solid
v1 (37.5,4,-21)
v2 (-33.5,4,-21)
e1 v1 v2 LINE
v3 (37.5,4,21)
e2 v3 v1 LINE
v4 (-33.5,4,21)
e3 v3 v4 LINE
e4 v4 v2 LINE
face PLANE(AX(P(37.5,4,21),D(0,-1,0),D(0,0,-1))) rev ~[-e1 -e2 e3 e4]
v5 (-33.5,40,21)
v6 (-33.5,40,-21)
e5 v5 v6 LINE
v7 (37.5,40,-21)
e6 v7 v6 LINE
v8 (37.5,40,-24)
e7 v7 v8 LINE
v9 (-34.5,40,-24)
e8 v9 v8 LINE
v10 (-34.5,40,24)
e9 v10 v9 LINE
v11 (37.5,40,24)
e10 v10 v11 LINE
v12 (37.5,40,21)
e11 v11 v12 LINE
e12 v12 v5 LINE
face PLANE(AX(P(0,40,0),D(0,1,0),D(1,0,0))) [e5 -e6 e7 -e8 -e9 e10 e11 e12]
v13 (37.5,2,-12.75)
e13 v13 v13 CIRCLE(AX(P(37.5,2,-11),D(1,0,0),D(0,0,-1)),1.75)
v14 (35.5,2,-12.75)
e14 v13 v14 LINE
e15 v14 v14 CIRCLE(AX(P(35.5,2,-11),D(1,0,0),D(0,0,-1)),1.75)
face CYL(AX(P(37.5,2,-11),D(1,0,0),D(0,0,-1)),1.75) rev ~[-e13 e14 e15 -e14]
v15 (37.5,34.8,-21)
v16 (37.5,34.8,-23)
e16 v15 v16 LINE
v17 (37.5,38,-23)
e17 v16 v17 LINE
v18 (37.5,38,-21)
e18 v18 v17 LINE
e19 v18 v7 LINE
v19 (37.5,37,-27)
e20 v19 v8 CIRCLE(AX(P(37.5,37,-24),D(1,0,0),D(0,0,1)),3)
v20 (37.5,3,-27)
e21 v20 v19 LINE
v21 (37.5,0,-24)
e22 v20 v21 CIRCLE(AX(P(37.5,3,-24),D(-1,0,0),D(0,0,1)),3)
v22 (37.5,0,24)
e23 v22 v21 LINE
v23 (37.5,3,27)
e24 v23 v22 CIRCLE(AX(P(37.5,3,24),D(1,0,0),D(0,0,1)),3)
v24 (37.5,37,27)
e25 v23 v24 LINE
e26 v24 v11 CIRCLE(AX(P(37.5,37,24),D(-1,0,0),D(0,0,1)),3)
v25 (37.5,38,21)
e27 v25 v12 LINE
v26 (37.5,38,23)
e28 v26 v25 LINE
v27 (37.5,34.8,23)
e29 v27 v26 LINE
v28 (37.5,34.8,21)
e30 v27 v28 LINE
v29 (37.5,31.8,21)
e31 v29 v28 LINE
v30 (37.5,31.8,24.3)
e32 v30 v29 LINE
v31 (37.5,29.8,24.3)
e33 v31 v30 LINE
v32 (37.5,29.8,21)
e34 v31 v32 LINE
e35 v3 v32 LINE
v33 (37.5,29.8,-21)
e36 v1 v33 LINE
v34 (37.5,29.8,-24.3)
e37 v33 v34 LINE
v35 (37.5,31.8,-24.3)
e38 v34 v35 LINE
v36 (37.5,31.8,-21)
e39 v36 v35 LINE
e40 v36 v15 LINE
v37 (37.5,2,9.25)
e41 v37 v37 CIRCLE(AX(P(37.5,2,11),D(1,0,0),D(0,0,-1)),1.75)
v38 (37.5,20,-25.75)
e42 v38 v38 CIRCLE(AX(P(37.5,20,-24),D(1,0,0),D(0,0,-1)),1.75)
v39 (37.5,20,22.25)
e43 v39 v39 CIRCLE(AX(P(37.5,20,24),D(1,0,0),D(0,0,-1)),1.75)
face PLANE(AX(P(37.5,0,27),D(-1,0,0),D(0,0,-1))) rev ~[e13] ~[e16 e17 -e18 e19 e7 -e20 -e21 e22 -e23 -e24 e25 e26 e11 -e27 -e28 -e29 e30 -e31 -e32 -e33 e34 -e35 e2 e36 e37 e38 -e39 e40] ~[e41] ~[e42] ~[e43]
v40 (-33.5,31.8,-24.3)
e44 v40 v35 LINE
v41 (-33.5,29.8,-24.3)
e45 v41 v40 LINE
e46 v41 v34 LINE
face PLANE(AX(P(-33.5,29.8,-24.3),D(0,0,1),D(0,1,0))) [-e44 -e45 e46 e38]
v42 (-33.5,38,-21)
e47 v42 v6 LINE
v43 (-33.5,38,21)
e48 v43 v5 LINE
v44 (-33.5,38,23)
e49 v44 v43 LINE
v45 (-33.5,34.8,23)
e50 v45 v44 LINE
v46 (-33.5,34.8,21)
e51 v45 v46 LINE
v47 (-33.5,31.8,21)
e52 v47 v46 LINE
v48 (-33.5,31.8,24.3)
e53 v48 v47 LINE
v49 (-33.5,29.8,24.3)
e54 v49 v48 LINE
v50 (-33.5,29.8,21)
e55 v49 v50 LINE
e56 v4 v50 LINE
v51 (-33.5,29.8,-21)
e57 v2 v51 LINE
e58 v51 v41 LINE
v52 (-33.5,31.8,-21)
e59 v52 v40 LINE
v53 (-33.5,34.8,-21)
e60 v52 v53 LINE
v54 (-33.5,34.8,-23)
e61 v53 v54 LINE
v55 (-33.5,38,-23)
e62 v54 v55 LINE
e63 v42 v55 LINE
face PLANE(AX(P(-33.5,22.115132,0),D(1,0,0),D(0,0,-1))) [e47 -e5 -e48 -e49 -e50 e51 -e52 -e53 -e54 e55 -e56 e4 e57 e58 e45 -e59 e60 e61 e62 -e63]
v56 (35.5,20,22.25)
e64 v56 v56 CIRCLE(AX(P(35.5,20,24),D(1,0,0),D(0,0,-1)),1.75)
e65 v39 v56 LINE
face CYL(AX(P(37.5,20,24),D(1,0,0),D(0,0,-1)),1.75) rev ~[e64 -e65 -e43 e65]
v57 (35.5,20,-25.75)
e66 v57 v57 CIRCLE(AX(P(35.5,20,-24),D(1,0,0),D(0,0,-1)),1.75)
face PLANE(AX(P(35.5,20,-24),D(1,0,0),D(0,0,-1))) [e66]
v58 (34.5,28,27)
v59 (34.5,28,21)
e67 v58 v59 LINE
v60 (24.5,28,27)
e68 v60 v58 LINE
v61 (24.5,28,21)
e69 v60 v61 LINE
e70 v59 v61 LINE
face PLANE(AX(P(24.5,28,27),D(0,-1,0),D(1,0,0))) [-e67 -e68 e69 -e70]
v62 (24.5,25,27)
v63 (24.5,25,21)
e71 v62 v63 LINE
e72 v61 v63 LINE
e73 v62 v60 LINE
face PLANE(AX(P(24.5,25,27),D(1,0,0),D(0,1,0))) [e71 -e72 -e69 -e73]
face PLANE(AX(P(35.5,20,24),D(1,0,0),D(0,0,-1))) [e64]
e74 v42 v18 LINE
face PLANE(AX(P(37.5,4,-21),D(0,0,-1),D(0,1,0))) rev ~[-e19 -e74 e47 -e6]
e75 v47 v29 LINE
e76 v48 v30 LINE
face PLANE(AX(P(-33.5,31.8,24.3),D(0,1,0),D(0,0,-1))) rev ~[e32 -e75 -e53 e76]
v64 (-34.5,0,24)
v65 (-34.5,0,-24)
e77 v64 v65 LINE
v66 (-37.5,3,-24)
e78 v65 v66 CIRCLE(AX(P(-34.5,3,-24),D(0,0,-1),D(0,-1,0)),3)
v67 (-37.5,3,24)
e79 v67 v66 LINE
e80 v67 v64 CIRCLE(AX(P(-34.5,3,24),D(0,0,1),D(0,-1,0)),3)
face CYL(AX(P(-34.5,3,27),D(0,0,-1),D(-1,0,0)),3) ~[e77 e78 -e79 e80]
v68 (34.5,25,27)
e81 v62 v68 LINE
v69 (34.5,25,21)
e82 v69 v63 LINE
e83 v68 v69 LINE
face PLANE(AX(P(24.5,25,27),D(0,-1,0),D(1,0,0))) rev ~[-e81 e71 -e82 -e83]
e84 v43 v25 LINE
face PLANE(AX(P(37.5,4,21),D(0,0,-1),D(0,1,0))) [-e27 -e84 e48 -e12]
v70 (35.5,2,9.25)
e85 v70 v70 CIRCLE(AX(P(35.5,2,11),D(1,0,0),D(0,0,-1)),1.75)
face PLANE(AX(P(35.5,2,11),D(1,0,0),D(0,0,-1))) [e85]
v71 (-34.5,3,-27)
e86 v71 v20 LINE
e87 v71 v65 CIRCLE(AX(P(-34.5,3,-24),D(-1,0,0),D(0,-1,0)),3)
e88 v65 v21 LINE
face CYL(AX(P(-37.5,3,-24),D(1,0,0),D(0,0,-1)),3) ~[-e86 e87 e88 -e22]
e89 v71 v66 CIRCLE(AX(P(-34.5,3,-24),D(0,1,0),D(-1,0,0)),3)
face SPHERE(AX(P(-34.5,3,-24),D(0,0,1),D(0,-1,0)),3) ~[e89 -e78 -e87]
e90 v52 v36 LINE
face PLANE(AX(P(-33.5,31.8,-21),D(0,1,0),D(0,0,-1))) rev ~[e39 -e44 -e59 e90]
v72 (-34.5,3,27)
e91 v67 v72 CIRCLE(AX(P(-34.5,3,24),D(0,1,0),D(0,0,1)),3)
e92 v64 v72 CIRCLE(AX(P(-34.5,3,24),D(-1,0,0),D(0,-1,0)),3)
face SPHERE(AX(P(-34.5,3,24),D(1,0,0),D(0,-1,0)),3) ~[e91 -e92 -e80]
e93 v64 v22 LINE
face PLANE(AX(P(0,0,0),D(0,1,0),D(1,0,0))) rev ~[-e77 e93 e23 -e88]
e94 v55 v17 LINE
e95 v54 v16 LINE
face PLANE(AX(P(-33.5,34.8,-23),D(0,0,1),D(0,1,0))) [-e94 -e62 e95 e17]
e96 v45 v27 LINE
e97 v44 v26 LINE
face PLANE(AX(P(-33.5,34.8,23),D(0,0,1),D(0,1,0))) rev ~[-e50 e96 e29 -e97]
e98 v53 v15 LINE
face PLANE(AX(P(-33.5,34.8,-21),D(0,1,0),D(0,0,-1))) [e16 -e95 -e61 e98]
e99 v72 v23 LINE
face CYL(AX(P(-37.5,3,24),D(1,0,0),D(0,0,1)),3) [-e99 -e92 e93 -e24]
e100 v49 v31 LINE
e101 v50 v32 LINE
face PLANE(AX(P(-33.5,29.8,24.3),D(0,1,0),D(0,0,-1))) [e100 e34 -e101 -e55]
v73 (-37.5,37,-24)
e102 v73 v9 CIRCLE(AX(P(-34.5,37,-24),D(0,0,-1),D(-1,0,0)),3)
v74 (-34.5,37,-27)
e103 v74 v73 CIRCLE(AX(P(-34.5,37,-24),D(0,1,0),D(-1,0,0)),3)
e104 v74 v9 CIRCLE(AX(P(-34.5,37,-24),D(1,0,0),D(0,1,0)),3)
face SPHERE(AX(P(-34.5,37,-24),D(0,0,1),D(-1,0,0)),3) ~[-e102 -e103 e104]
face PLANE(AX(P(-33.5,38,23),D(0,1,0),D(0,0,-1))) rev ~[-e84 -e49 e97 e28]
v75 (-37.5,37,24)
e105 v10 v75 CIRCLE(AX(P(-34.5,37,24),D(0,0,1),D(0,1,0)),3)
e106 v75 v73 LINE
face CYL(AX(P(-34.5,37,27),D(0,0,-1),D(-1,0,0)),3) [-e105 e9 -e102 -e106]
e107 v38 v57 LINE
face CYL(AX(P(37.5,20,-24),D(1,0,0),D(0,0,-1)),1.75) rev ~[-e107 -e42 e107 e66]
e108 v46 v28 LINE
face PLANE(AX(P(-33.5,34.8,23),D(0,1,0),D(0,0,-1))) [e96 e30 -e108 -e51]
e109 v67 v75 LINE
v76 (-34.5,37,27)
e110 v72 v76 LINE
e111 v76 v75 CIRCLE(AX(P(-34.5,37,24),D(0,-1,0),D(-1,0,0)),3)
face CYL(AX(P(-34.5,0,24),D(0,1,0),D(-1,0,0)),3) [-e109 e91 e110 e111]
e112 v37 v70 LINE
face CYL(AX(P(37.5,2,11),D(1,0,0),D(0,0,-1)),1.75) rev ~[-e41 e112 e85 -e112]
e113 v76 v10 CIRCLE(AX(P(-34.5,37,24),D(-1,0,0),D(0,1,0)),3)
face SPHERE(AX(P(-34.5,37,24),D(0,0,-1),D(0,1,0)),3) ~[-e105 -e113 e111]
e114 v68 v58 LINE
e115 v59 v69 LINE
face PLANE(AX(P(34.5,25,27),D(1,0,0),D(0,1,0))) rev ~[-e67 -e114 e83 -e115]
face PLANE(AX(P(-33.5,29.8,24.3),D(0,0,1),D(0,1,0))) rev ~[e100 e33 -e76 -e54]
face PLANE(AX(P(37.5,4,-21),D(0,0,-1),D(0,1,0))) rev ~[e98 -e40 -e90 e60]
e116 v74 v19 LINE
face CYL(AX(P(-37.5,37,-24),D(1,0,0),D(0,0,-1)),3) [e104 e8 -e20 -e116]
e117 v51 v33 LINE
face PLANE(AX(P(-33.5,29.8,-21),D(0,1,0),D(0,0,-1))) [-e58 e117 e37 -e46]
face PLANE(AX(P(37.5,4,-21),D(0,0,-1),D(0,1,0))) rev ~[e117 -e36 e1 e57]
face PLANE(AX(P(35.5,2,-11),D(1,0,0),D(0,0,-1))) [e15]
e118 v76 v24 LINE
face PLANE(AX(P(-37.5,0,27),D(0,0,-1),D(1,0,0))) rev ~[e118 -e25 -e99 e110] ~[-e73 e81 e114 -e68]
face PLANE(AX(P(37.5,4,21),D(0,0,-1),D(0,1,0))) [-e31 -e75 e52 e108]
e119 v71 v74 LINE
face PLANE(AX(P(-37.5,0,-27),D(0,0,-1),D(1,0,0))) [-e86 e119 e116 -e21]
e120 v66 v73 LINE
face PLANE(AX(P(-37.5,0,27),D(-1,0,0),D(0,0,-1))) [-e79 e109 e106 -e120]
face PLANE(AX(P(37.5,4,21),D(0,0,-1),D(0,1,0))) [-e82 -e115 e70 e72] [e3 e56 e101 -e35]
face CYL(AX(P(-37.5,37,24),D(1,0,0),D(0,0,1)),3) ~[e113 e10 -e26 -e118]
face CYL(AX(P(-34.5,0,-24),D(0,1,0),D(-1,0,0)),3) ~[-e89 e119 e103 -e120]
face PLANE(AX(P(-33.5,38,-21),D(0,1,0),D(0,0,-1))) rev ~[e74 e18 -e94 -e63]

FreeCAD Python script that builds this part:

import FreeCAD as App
import Part
import Sketcher
from FreeCAD import Vector


def edges_at(feature, points):
    """Names of the edges that pass closest to the given points."""
    edges = feature.Shape.Edges
    near = lambda p: min(range(len(edges)), key=lambda i: edges[i].distToShape(Part.Vertex(*p))[0])
    return sorted({f"Edge{near(p) + 1}" for p in points})

doc = App.newDocument("Part")
body = doc.addObject("PartDesign::Body", "Body")

# Sketch on XZ plane
sketch1 = doc.addObject("Sketcher::SketchObject", "Sketch")
body.addObject(sketch1)
sketch1.AttachmentSupport = (doc.XZ_Plane, [""])
sketch1.MapMode = "FlatFace"
sketch1.addGeometry([
    Part.LineSegment(Vector(-37.5, -27, 0), Vector(-37.5, 27, 0)),
    Part.LineSegment(Vector(-37.5, 27, 0), Vector(37.5, 27, 0)),
    Part.LineSegment(Vector(37.5, 27, 0), Vector(37.5, -27, 0)),
    Part.LineSegment(Vector(37.5, -27, 0), Vector(-37.5, -27, 0)),
], False)
sketch1.addConstraint([
    Sketcher.Constraint("Coincident", 0, 2, 1, 1),
    Sketcher.Constraint("Coincident", 1, 2, 2, 1),
    Sketcher.Constraint("Coincident", 2, 2, 3, 1),
    Sketcher.Constraint("Coincident", 3, 2, 0, 1),
    Sketcher.Constraint("Vertical", 0),
    Sketcher.Constraint("Horizontal", 1),
    Sketcher.Constraint("Vertical", 2),
    Sketcher.Constraint("Horizontal", 3),
    Sketcher.Constraint("Symmetric", 0, 2, 2, 2, -1, 1),
    Sketcher.Constraint("DistanceX", 1, 1, 1, 2, 75.0),
    Sketcher.Constraint("DistanceY", 0, 1, 0, 2, 54.0),
])
pad1 = doc.addObject("PartDesign::Pad", "Pad")
body.addObject(pad1)
pad1.Profile = sketch1
pad1.Length = 40
pad1.Reversed = True

# Sketch on YZ plane
sketch2 = doc.addObject("Sketcher::SketchObject", "Sketch001")
body.addObject(sketch2)
sketch2.AttachmentSupport = (doc.YZ_Plane, [""])
sketch2.MapMode = "FlatFace"
sketch2.AttachmentOffset = App.Placement(Vector(0, 0, 37.5), App.Rotation())
sketch2.addGeometry([
    Part.LineSegment(Vector(40.230265, 21, 0), Vector(4, 21, 0)),
    Part.LineSegment(Vector(4, 21, 0), Vector(4, -21, 0)),
    Part.LineSegment(Vector(4, -21, 0), Vector(40.230265, -21, 0)),
    Part.LineSegment(Vector(40.230265, -21, 0), Vector(40.230265, 21, 0)),
], False)
sketch2.addConstraint([
    Sketcher.Constraint("Coincident", 0, 2, 1, 1),
    Sketcher.Constraint("Coincident", 1, 2, 2, 1),
    Sketcher.Constraint("Coincident", 2, 2, 3, 1),
    Sketcher.Constraint("Coincident", 3, 2, 0, 1),
    Sketcher.Constraint("Horizontal", 0),
    Sketcher.Constraint("Vertical", 1),
    Sketcher.Constraint("Horizontal", 2),
    Sketcher.Constraint("Vertical", 3),
    Sketcher.Constraint("DistanceY", 1, 2, 1, 1, 42.0),
    Sketcher.Constraint("DistanceX", -1, 1, 0, 2, 4.0),
    Sketcher.Constraint("DistanceY", -1, 1, 0, 2, 21.0),
    Sketcher.Constraint("DistanceX", 0, 2, 0, 1, 36.230265),
])
pocket1 = doc.addObject("PartDesign::Pocket", "Pocket")
body.addObject(pocket1)
pocket1.Profile = sketch2
pocket1.Length = 71

# Sketch on YZ plane
sketch3 = doc.addObject("Sketcher::SketchObject", "Sketch002")
body.addObject(sketch3)
sketch3.AttachmentSupport = (doc.YZ_Plane, [""])
sketch3.MapMode = "FlatFace"
sketch3.AttachmentOffset = App.Placement(Vector(0, 0, -33.5), App.Rotation())
sketch3.addGeometry([
    Part.LineSegment(Vector(38, 23, 0), Vector(34.8, 23, 0)),  # 0
    Part.LineSegment(Vector(34.8, 23, 0), Vector(34.8, 21, 0)),  # 1
    Part.LineSegment(Vector(34.8, 21, 0), Vector(38, 21, 0)),  # 2
    Part.LineSegment(Vector(38, 21, 0), Vector(38, 23, 0)),  # 3
    Part.LineSegment(Vector(31.8, 24.3, 0), Vector(29.8, 24.3, 0)),  # 4
    Part.LineSegment(Vector(29.8, 24.3, 0), Vector(29.8, 21, 0)),  # 5
    Part.LineSegment(Vector(29.8, 21, 0), Vector(31.8, 21, 0)),  # 6
    Part.LineSegment(Vector(31.8, 21, 0), Vector(31.8, 24.3, 0)),  # 7
    Part.LineSegment(Vector(38, -21, 0), Vector(34.8, -21, 0)),  # 8
    Part.LineSegment(Vector(34.8, -21, 0), Vector(34.8, -23, 0)),  # 9
    Part.LineSegment(Vector(34.8, -23, 0), Vector(38, -23, 0)),  # 10
    Part.LineSegment(Vector(38, -23, 0), Vector(38, -21, 0)),  # 11
    Part.LineSegment(Vector(31.8, -21, 0), Vector(29.8, -21, 0)),  # 12
    Part.LineSegment(Vector(29.8, -21, 0), Vector(29.8, -24.3, 0)),  # 13
    Part.LineSegment(Vector(29.8, -24.3, 0), Vector(31.8, -24.3, 0)),  # 14
    Part.LineSegment(Vector(31.8, -24.3, 0), Vector(31.8, -21, 0)),  # 15
], False)
sketch3.addConstraint([
    Sketcher.Constraint("Coincident", 0, 2, 1, 1),
    Sketcher.Constraint("Coincident", 1, 2, 2, 1),
    Sketcher.Constraint("Coincident", 2, 2, 3, 1),
    Sketcher.Constraint("Coincident", 3, 2, 0, 1),
    Sketcher.Constraint("Coincident", 4, 2, 5, 1),
    Sketcher.Constraint("Coincident", 5, 2, 6, 1),
    Sketcher.Constraint("Coincident", 6, 2, 7, 1),
    Sketcher.Constraint("Coincident", 7, 2, 4, 1),
    Sketcher.Constraint("Coincident", 8, 2, 9, 1),
    Sketcher.Constraint("Coincident", 9, 2, 10, 1),
    Sketcher.Constraint("Coincident", 10, 2, 11, 1),
    Sketcher.Constraint("Coincident", 11, 2, 8, 1),
    Sketcher.Constraint("Coincident", 12, 2, 13, 1),
    Sketcher.Constraint("Coincident", 13, 2, 14, 1),
    Sketcher.Constraint("Coincident", 14, 2, 15, 1),
    Sketcher.Constraint("Coincident", 15, 2, 12, 1),
    Sketcher.Constraint("Horizontal", 0),
    Sketcher.Constraint("Vertical", 1),
    Sketcher.Constraint("Horizontal", 2),
    Sketcher.Constraint("Vertical", 3),
    Sketcher.Constraint("Horizontal", 4),
    Sketcher.Constraint("Vertical", 5),
    Sketcher.Constraint("Horizontal", 6),
    Sketcher.Constraint("Vertical", 7),
    Sketcher.Constraint("Horizontal", 8),
    Sketcher.Constraint("Vertical", 9),
    Sketcher.Constraint("Horizontal", 10),
    Sketcher.Constraint("Vertical", 11),
    Sketcher.Constraint("Horizontal", 12),
    Sketcher.Constraint("Vertical", 13),
    Sketcher.Constraint("Horizontal", 14),
    Sketcher.Constraint("Vertical", 15),
    Sketcher.Constraint("Symmetric", 1, 2, 8, 2, -1),
    Sketcher.Constraint("Symmetric", 3, 2, 10, 2, -1),
    Sketcher.Constraint("Symmetric", 5, 2, 12, 2, -1),
    Sketcher.Constraint("Symmetric", 7, 2, 14, 2, -1),
    Sketcher.Constraint("Horizontal", 2, 2, 5, 2),
    Sketcher.Constraint("Equal", 14, 1),
    Sketcher.Constraint("DistanceX", 4, 2, 4, 1, 2.0),
    Sketcher.Constraint("DistanceX", 0, 2, 0, 1, 3.2),
    Sketcher.Constraint("DistanceY", 5, 2, 5, 1, 3.3),
    Sketcher.Constraint("DistanceY", -1, 1, 0, 2, 23.0),
    Sketcher.Constraint("DistanceX", -1, 1, 2, 2, 38.0),
    Sketcher.Constraint("DistanceX", 4, 2, 0, 2, 5.0),
])
pocket2 = doc.addObject("PartDesign::Pocket", "Pocket001")
body.addObject(pocket2)
pocket2.Profile = sketch3
pocket2.Length = 72
pocket2.Reversed = True

# Sketch on XY plane
sketch4 = doc.addObject("Sketcher::SketchObject", "Sketch003")
body.addObject(sketch4)
sketch4.AttachmentSupport = (doc.XY_Plane, [""])
sketch4.MapMode = "FlatFace"
sketch4.AttachmentOffset = App.Placement(Vector(0, 0, 27), App.Rotation())
sketch4.addGeometry([
    Part.LineSegment(Vector(24.5, 28, 0), Vector(24.5, 25, 0)),
    Part.LineSegment(Vector(24.5, 25, 0), Vector(34.5, 25, 0)),
    Part.LineSegment(Vector(34.5, 25, 0), Vector(34.5, 28, 0)),
    Part.LineSegment(Vector(34.5, 28, 0), Vector(24.5, 28, 0)),
], False)
sketch4.addConstraint([
    Sketcher.Constraint("Coincident", 0, 2, 1, 1),
    Sketcher.Constraint("Coincident", 1, 2, 2, 1),
    Sketcher.Constraint("Coincident", 2, 2, 3, 1),
    Sketcher.Constraint("Coincident", 3, 2, 0, 1),
    Sketcher.Constraint("Vertical", 0),
    Sketcher.Constraint("Horizontal", 1),
    Sketcher.Constraint("Vertical", 2),
    Sketcher.Constraint("Horizontal", 3),
    Sketcher.Constraint("DistanceX", 1, 1, 1, 2, 10.0),
    Sketcher.Constraint("DistanceY", 0, 2, 0, 1, 3.0),
    Sketcher.Constraint("DistanceY", -1, 1, 0, 2, 25.0),
    Sketcher.Constraint("DistanceX", -1, 1, 0, 2, 24.5),
])
pocket3 = doc.addObject("PartDesign::Pocket", "Pocket002")
body.addObject(pocket3)
pocket3.Profile = sketch4
pocket3.Length = 11

# Sketch on YZ plane
sketch5 = doc.addObject("Sketcher::SketchObject", "Sketch004")
body.addObject(sketch5)
sketch5.AttachmentSupport = (doc.YZ_Plane, [""])
sketch5.MapMode = "FlatFace"
sketch5.AttachmentOffset = App.Placement(Vector(0, 0, 37.5), App.Rotation())
sketch5.addGeometry([
    Part.Circle(Vector(20, 24, 0), Vector(0, 0, 1), 1.75),
    Part.Circle(Vector(2, 11, 0), Vector(0, 0, 1), 1.75),
    Part.Circle(Vector(2, -11, 0), Vector(0, 0, 1), 1.75),
    Part.Circle(Vector(20, -24, 0), Vector(0, 0, 1), 1.75),
], False)
sketch5.addConstraint([
    Sketcher.Constraint("Equal", 0, 1),
    Sketcher.Constraint("Equal", 1, 2),
    Sketcher.Constraint("Equal", 2, 3),
    Sketcher.Constraint("Symmetric", 1, 3, 2, 3, -1),
    Sketcher.Constraint("Symmetric", 0, 3, 3, 3, -1),
    Sketcher.Constraint("Diameter", 0, 3.5),
    Sketcher.Constraint("DistanceX", -1, 1, 0, 3, 20.0),
    Sketcher.Constraint("DistanceY", -1, 1, 0, 3, 24.0),
    Sketcher.Constraint("DistanceX", -1, 1, 1, 3, 2.0),
    Sketcher.Constraint("DistanceY", -1, 1, 1, 3, 11.0),
])
pocket4 = doc.addObject("PartDesign::Pocket", "Pocket003")
body.addObject(pocket4)
pocket4.Profile = sketch5
pocket4.Length = 2
doc.recompute()

fillet = doc.addObject("PartDesign::Fillet", "Fillet")
body.addObject(fillet)
fillet.Base = (pocket4, edges_at(pocket4, [
    (-37.5, 40, 0),
    (0, 40, 27),
    (0, 0, 27),
    (-37.5, 0, 0),
    (0, 0, -27),
    (-37.5, 20, 27),
    (-37.5, 20, -27),
    (0, 40, -27),
]))
fillet.Radius = 3

doc.recompute()
